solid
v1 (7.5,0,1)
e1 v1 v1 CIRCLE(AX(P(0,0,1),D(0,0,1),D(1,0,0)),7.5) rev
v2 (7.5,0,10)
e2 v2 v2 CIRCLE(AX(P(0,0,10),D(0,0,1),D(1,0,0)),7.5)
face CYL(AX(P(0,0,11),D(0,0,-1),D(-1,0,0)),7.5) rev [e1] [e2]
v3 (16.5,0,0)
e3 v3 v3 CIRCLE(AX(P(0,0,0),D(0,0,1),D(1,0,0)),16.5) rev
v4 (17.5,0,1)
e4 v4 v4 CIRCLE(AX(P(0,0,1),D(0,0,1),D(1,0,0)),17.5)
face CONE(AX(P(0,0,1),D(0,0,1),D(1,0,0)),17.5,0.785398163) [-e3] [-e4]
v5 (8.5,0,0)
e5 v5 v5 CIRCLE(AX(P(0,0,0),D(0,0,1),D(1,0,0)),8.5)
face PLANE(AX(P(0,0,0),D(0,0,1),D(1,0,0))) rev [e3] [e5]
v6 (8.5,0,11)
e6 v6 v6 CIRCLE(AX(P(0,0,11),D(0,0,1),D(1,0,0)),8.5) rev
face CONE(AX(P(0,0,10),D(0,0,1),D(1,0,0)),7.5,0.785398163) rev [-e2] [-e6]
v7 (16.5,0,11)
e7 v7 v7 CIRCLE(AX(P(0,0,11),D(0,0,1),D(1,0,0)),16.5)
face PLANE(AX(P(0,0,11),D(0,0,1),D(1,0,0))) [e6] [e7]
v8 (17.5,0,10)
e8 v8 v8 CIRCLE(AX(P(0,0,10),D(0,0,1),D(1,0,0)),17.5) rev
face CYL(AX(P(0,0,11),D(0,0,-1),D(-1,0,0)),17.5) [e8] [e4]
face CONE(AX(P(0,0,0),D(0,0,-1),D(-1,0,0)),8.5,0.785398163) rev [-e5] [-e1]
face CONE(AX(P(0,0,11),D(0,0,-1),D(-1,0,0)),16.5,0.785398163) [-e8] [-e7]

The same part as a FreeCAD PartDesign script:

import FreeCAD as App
import Part
import Sketcher
Q = App.Units.Quantity


def edges_at(feature, points):
    """Names of the edges that pass closest to the given points."""
    edges = feature.Shape.Edges
    near = lambda p: min(range(len(edges)), key=lambda i: edges[i].distToShape(Part.Vertex(*p))[0])
    return sorted({f"Edge{near(p) + 1}" for p in points})

doc = App.newDocument("Part")
body = doc.addObject("PartDesign::Body", "Body")

sketch1 = body.newObject("Sketcher::SketchObject", "Sketch")
sketch1.AttachmentSupport = (doc.getObject("XY_Plane"), [""])
sketch1.MapMode = "FlatFace"
sketch1.addGeometry(Part.Circle(App.Vector(0, 0, 0), App.Vector(0, 0, 1), 18), False)
sketch1.addGeometry(Part.Circle(App.Vector(0, 0, 0), App.Vector(0, 0, 1), 8), False)
sketch1.addConstraint(Sketcher.Constraint("Coincident", 0, 3, -1, 1))
sketch1.addConstraint(Sketcher.Constraint("Coincident", 1, 3, -1, 1))
sketch1.addConstraint(Sketcher.Constraint("Diameter", 0, Q("35 mm")))
sketch1.addConstraint(Sketcher.Constraint("Diameter", 1, Q("15 mm")))
pad1 = body.newObject("PartDesign::Pad", "Pad")
pad1.Profile = sketch1
pad1.Length = 11
doc.recompute()

chamfer = body.newObject("PartDesign::Chamfer", "Chamfer")
chamfer.Base = (pad1, edges_at(pad1, [
    (-17.5, 0, 0),
    (-17.5, 0, 11),
    (-7.5, 0, 0),
    (-7.5, 0, 11),
]))
chamfer.Size = 1

doc.recompute()
